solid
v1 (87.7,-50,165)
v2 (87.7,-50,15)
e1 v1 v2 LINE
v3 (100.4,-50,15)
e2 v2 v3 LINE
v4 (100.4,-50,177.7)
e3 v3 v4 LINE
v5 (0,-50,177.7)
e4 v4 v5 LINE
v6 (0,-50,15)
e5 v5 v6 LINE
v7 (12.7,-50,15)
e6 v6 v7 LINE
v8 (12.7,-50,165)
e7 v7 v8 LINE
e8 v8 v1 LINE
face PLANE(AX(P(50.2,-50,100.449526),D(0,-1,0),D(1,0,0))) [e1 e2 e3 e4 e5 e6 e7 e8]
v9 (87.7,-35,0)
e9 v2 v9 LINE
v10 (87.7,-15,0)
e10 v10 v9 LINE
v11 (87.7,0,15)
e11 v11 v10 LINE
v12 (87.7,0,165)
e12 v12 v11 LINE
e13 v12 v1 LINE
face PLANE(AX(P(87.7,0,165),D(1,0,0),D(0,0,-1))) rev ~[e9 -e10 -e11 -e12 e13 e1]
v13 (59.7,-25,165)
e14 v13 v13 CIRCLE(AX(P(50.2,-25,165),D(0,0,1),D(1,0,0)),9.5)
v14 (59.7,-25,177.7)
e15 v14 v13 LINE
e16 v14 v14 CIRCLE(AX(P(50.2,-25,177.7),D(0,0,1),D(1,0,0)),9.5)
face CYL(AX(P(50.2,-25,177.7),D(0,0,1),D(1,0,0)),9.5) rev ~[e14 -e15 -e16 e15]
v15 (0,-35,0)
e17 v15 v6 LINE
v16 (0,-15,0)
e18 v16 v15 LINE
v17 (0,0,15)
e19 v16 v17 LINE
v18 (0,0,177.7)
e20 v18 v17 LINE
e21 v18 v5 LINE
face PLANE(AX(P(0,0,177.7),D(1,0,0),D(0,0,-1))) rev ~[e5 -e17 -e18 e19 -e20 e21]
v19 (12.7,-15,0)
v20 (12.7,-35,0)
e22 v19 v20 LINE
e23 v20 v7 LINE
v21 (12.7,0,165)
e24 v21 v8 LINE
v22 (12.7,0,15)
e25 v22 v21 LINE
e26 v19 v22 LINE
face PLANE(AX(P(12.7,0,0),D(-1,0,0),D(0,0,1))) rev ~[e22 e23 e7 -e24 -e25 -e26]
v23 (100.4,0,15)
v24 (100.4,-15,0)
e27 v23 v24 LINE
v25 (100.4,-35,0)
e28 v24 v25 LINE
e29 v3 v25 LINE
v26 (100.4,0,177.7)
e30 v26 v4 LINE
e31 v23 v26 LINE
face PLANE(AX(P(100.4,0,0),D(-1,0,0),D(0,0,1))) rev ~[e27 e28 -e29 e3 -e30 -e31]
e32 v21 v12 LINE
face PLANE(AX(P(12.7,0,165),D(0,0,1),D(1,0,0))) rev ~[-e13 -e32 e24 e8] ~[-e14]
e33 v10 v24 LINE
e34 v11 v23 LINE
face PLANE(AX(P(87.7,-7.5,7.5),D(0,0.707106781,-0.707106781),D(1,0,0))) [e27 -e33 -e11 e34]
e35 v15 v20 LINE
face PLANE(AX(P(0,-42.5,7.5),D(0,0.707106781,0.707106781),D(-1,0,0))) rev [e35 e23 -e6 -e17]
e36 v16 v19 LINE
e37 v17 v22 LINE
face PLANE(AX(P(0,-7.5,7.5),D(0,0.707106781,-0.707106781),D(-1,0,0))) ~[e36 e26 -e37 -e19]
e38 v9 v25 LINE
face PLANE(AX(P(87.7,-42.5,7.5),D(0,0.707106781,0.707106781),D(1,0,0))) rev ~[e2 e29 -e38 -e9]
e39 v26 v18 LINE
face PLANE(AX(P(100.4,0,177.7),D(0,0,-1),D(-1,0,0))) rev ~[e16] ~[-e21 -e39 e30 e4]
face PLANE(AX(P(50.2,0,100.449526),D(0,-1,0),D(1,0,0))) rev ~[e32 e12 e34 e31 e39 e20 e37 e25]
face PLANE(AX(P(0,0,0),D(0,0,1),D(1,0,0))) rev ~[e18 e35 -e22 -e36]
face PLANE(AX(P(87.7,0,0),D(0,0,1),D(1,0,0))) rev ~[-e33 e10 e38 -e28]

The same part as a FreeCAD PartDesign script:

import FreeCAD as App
import Part
import Sketcher

V = App.Vector


def edges_at(feature, points):
    """Names of the edges that pass closest to the given points."""
    edges = feature.Shape.Edges
    near = lambda p: min(range(len(edges)), key=lambda i: edges[i].distToShape(Part.Vertex(*p))[0])
    return sorted({f"Edge{near(p) + 1}" for p in points})


def add_polygon(sketch, points):
    """Adds a closed chain of lines whose ends are joined by coincident constraints."""
    first, n = sketch.GeometryCount, len(points)
    for a, b in zip(points, points[1:] + points[:1]):
        sketch.addGeometry(Part.LineSegment(App.Vector(*a, 0), App.Vector(*b, 0)), False)
    for i in range(n):
        sketch.addConstraint(Sketcher.Constraint("Coincident", first + i, 2, first + (i + 1) % n, 1))

doc = App.newDocument("Part")
body = doc.addObject("PartDesign::Body", "Body")

sketch1 = body.newObject("Sketcher::SketchObject", "Sketch")
sketch1.AttachmentSupport = (doc.getObject("XZ_Plane"), [""])
sketch1.MapMode = "FlatFace"
add_polygon(sketch1, [(0, 178), (0, 0), (13, 0), (13, 165), (88, 165), (88, 0), (100, 0), (100, 178)])
sketch1.addConstraint(Sketcher.Constraint("Vertical", 0))
sketch1.addConstraint(Sketcher.Constraint("Horizontal", 1))
sketch1.addConstraint(Sketcher.Constraint("Vertical", 2))
sketch1.addConstraint(Sketcher.Constraint("Horizontal", 3))
sketch1.addConstraint(Sketcher.Constraint("Vertical", 4))
sketch1.addConstraint(Sketcher.Constraint("Horizontal", 5))
sketch1.addConstraint(Sketcher.Constraint("Vertical", 6))
sketch1.addConstraint(Sketcher.Constraint("Horizontal", 7))
sketch1.addConstraint(Sketcher.Constraint("Coincident", 0, 2, -1, 1))
sketch1.addConstraint(Sketcher.Constraint("PointOnObject", 4, 2, -1))
sketch1.addConstraint(Sketcher.Constraint("Equal", 1, 5))
sketch1.addConstraint(Sketcher.Constraint("DistanceX", 3, 1, 3, 2, 75.0))
sketch1.addConstraint(Sketcher.Constraint("DistanceY", 2, 1, 2, 2, 165.0))
sketch1.addConstraint(Sketcher.Constraint("DistanceX", 1, 1, 1, 2, 12.7))
sketch1.addConstraint(Sketcher.Constraint("DistanceY", 0, 2, 0, 1, 177.7))
pad1 = body.newObject("PartDesign::Pad", "Pad")
pad1.Profile = sketch1
pad1.Length = 50

sketch2 = body.newObject("Sketcher::SketchObject", "Sketch001")
sketch2.AttachmentSupport = (doc.getObject("XY_Plane"), [""])
sketch2.MapMode = "FlatFace"
sketch2.AttachmentOffset = App.Placement(V(0, 0, 177.7), App.Rotation())
sketch2.addGeometry(Part.Circle(V(50, -25, 0), V(0, 0, 1), 10), False)
sketch2.addConstraint(Sketcher.Constraint("Diameter", 0, 19.0))
sketch2.addConstraint(Sketcher.Constraint("DistanceY", 0, 3, -1, 1, 25.0))
sketch2.addConstraint(Sketcher.Constraint("DistanceX", -1, 1, 0, 3, 50.2))
pocket1 = body.newObject("PartDesign::Pocket", "Pocket")
pocket1.Profile = sketch2
pocket1.Type = "ThroughAll"
doc.recompute()

chamfer = body.newObject("PartDesign::Chamfer", "Chamfer")
chamfer.Base = (pocket1, edges_at(pocket1, [(6.35, -50, 0), (6.35, 0, 0)]))
chamfer.Size = 15
doc.recompute()

chamfer2 = body.newObject("PartDesign::Chamfer", "Chamfer001")
chamfer2.Base = (chamfer, edges_at(chamfer, [(94.05, -50, 0), (94.05, 0, 0)]))
chamfer2.Size = 15

doc.recompute()
